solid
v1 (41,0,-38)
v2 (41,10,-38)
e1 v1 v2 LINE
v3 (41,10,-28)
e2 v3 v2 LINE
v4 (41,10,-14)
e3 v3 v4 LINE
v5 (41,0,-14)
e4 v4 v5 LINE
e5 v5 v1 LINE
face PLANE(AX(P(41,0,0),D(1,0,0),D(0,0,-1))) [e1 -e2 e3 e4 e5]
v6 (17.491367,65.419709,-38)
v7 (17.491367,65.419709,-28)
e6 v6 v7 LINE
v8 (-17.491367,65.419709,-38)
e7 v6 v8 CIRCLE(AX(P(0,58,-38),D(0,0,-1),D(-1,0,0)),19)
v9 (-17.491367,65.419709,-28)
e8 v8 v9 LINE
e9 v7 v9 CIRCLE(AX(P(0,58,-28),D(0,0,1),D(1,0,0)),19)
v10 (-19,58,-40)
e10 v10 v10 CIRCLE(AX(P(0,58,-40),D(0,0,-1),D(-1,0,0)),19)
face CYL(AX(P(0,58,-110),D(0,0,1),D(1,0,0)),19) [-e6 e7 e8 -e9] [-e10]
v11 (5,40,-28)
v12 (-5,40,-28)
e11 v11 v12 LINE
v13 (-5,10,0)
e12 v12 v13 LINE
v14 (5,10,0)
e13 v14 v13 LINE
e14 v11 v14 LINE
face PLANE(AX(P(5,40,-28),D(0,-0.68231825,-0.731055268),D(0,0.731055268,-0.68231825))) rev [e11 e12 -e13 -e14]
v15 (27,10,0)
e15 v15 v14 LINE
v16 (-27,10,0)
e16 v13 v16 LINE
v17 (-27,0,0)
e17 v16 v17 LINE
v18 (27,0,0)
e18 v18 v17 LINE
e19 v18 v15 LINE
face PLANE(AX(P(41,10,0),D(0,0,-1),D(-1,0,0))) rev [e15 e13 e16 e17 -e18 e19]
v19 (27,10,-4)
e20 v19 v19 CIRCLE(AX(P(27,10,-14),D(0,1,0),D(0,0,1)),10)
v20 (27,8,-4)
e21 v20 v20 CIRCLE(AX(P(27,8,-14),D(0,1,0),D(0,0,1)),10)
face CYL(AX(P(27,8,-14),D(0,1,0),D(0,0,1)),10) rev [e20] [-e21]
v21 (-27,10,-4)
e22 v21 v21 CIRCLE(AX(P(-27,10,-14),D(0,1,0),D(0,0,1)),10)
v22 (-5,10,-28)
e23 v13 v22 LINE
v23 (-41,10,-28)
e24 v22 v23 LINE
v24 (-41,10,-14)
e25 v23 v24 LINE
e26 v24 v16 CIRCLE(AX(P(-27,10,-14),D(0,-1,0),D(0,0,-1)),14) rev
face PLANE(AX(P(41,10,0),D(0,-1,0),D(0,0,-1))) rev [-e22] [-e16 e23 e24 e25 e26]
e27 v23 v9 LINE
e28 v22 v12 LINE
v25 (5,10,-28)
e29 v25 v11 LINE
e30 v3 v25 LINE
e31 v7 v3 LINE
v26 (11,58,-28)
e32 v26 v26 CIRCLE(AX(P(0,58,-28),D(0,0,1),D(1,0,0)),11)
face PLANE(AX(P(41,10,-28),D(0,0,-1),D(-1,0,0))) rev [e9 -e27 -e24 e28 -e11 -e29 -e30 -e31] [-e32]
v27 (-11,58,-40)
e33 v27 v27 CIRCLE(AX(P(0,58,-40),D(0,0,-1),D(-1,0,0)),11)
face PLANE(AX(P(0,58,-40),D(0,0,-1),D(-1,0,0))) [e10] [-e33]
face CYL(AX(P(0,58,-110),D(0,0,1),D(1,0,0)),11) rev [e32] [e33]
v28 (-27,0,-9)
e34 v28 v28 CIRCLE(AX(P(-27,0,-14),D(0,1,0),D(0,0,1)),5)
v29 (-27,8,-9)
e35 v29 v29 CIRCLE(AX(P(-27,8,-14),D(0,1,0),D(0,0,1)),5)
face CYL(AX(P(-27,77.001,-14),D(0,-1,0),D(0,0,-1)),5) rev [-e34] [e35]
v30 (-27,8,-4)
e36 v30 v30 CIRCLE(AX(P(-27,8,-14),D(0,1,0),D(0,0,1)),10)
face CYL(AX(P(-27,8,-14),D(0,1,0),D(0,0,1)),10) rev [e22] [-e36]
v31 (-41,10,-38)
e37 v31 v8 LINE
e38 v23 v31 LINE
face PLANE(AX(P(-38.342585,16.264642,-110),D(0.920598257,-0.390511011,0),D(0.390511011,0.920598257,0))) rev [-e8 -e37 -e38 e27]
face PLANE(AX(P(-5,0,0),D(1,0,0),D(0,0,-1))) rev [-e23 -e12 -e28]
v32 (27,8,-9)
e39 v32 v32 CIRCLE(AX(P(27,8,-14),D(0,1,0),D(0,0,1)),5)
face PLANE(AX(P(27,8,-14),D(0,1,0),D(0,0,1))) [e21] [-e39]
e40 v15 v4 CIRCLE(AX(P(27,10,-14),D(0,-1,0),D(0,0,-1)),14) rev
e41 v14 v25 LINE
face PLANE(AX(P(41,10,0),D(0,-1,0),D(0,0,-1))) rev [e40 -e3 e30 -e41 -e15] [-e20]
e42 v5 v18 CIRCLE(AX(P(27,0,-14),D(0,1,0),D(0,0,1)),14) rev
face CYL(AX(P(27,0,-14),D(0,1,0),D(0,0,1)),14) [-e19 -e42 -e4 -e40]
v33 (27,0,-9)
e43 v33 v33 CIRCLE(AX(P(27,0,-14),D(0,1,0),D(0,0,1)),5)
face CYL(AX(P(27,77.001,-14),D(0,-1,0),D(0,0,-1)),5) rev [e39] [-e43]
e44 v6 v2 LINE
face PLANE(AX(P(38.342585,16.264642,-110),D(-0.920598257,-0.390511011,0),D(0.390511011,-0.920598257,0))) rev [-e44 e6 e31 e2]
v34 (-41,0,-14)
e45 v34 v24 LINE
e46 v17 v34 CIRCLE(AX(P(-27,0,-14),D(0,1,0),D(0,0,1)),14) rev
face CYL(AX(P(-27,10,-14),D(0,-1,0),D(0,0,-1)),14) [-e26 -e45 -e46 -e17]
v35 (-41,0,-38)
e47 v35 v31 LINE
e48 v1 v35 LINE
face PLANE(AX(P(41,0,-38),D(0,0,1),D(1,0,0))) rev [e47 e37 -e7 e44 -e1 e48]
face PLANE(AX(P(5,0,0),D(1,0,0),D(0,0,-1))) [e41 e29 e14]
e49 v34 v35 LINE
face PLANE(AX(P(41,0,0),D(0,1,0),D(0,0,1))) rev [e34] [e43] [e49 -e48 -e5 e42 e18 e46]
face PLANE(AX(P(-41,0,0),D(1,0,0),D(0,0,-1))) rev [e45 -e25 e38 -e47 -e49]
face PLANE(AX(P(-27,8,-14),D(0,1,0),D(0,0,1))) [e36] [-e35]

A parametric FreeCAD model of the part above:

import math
import FreeCAD as App
import Part
import Sketcher

V = App.Vector
Q = App.Units.Quantity


def edges_at(feature, points):
    """Names of the edges that pass closest to the given points."""
    edges = feature.Shape.Edges
    near = lambda p: min(range(len(edges)), key=lambda i: edges[i].distToShape(Part.Vertex(*p))[0])
    return sorted({f"Edge{near(p) + 1}" for p in points})


def add_polygon(sketch, points):
    """Adds a closed chain of lines whose ends are joined by coincident constraints."""
    first, n = sketch.GeometryCount, len(points)
    for a, b in zip(points, points[1:] + points[:1]):
        sketch.addGeometry(Part.LineSegment(App.Vector(*a, 0), App.Vector(*b, 0)), False)
    for i in range(n):
        sketch.addConstraint(Sketcher.Constraint("Coincident", first + i, 2, first + (i + 1) % n, 1))

doc = App.newDocument("Part")
body = doc.addObject("PartDesign::Body", "Body")

# Sketch on YZ plane
sketch1 = doc.addObject("Sketcher::SketchObject", "Sketch")
body.addObject(sketch1)
sketch1.AttachmentSupport = (doc.YZ_Plane, [""])
sketch1.MapMode = "FlatFace"
add_polygon(sketch1, [(0, 0), (0, -38), (77, -38), (77, -28), (10, -28), (10, 0)])  # lines 0-5
sketch1.addConstraint(Sketcher.Constraint("Vertical", 0))
sketch1.addConstraint(Sketcher.Constraint("Horizontal", 1))
sketch1.addConstraint(Sketcher.Constraint("Vertical", 2))
sketch1.addConstraint(Sketcher.Constraint("Horizontal", 3))
sketch1.addConstraint(Sketcher.Constraint("Vertical", 4))
sketch1.addConstraint(Sketcher.Constraint("Horizontal", 5))
sketch1.addConstraint(Sketcher.Constraint("Coincident", 5, 2, -1, 1))
sketch1.addConstraint(Sketcher.Constraint("Equal", 5, 2))
sketch1.addConstraint(Sketcher.Constraint("DistanceX", 1, 1, 1, 2, Q("77 mm")))
sketch1.addConstraint(Sketcher.Constraint("DistanceX", 3, 2, 3, 1, Q("67 mm")))
sketch1.addConstraint(Sketcher.Constraint("DistanceY", 0, 2, 0, 1, Q("38 mm")))
pad1 = doc.addObject("PartDesign::Pad", "Pad")
body.addObject(pad1)
pad1.Profile = sketch1
pad1.Length = 82
pad1.Midplane = True

# Sketch on XY plane
sketch2 = doc.addObject("Sketcher::SketchObject", "Sketch001")
body.addObject(sketch2)
sketch2.AttachmentSupport = (doc.XY_Plane, [""])
sketch2.MapMode = "FlatFace"
sketch2.AttachmentOffset = App.Placement(V(0, 0, -28), App.Rotation())
sketch2.addGeometry(Part.LineSegment(V(-41, 77, 0), V(-41, 10, 0)), False)
sketch2.addGeometry(Part.LineSegment(V(-41, 10, 0), V(-17, 65, 0)), False)
sketch2.addGeometry(Part.ArcOfCircle(Part.Circle(V(0, 58, 0), V(0, 0, 1), 19), math.radians(90), math.radians(157)), False)
sketch2.addGeometry(Part.LineSegment(V(0, 77, 0), V(-41, 77, 0)), False)
sketch2.addGeometry(Part.LineSegment(V(41, 77, 0), V(0, 77, 0)), False)
sketch2.addGeometry(Part.ArcOfCircle(Part.Circle(V(0, 58, 0), V(0, 0, 1), 19), math.radians(23), math.radians(90)), False)
sketch2.addGeometry(Part.LineSegment(V(17, 65, 0), V(41, 10, 0)), False)
sketch2.addGeometry(Part.LineSegment(V(41, 10, 0), V(41, 77, 0)), False)
sketch2.addGeometry(Part.Circle(V(0, 58, 0), V(0, 0, 1), 11), False)
sketch2.addConstraint(Sketcher.Constraint("Coincident", 0, 2, 1, 1))
sketch2.addConstraint(Sketcher.Constraint("Tangent", 1, 2, 2, 2))
sketch2.addConstraint(Sketcher.Constraint("Tangent", 2, 1, 3, 1))
sketch2.addConstraint(Sketcher.Constraint("Coincident", 3, 2, 0, 1))
sketch2.addConstraint(Sketcher.Constraint("Tangent", 4, 2, 5, 2))
sketch2.addConstraint(Sketcher.Constraint("Tangent", 5, 1, 6, 1))
sketch2.addConstraint(Sketcher.Constraint("Coincident", 6, 2, 7, 1))
sketch2.addConstraint(Sketcher.Constraint("Coincident", 7, 2, 4, 1))
sketch2.addConstraint(Sketcher.Constraint("Vertical", 0))
sketch2.addConstraint(Sketcher.Constraint("Horizontal", 3))
sketch2.addConstraint(Sketcher.Constraint("Horizontal", 4))
sketch2.addConstraint(Sketcher.Constraint("Vertical", 7))
sketch2.addConstraint(Sketcher.Constraint("Coincident", 5, 3, 2, 3))
sketch2.addConstraint(Sketcher.Constraint("Coincident", 8, 3, 2, 3))
sketch2.addConstraint(Sketcher.Constraint("Equal", 2, 5))
sketch2.addConstraint(Sketcher.Constraint("Symmetric", 1, 2, 5, 1, -2))
sketch2.addConstraint(Sketcher.Constraint("Horizontal", 0, 2, 6, 2))
sketch2.addConstraint(Sketcher.Constraint("Diameter", 8, Q("22 mm")))
sketch2.addConstraint(Sketcher.Constraint("Radius", 2, Q("19 mm")))
sketch2.addConstraint(Sketcher.Constraint("DistanceX", 3, 2, 3, 1, Q("41 mm")))
sketch2.addConstraint(Sketcher.Constraint("DistanceY", 0, 2, 0, 1, Q("67 mm")))
sketch2.addConstraint(Sketcher.Constraint("DistanceY", -1, 1, 2, 3, Q("58 mm")))
pocket1 = doc.addObject("PartDesign::Pocket", "Pocket")
body.addObject(pocket1)
pocket1.Profile = sketch2
pocket1.Length = 82

# Sketch on YZ plane
sketch3 = doc.addObject("Sketcher::SketchObject", "Sketch002")
body.addObject(sketch3)
sketch3.AttachmentSupport = (doc.YZ_Plane, [""])
sketch3.MapMode = "FlatFace"
add_polygon(sketch3, [(10, 0), (10, -28), (40, -28)])  # lines 0-2
sketch3.addConstraint(Sketcher.Constraint("Vertical", 0))
sketch3.addConstraint(Sketcher.Constraint("Horizontal", 1))
sketch3.addConstraint(Sketcher.Constraint("PointOnObject", 2, 2, -1))
sketch3.addConstraint(Sketcher.Constraint("DistanceX", 1, 1, 1, 2, Q("30 mm")))
sketch3.addConstraint(Sketcher.Constraint("DistanceY", 0, 2, 0, 1, Q("28 mm")))
sketch3.addConstraint(Sketcher.Constraint("DistanceX", -1, 1, 0, 2, Q("10 mm")))
pad2 = doc.addObject("PartDesign::Pad", "Pad001")
body.addObject(pad2)
pad2.Profile = sketch3
pad2.Length = 10
pad2.Midplane = True
doc.recompute()

fillet = doc.addObject("PartDesign::Fillet", "Fillet")
body.addObject(fillet)
fillet.Base = (pad2, edges_at(pad2, [(41, 5, 0), (-41, 5, 0)]))
fillet.Radius = 14

# Sketch on XZ plane
sketch4 = doc.addObject("Sketcher::SketchObject", "Sketch003")
body.addObject(sketch4)
sketch4.AttachmentSupport = (doc.XZ_Plane, [""])
sketch4.MapMode = "FlatFace"
sketch4.addGeometry(Part.Circle(V(-27, -14, 0), V(0, 0, 1), 5), False)
sketch4.addConstraint(Sketcher.Constraint("Diameter", 0, Q("10 mm")))
sketch4.addConstraint(Sketcher.Constraint("DistanceX", 0, 3, -1, 1, Q("27 mm")))
sketch4.addConstraint(Sketcher.Constraint("DistanceY", 0, 3, -1, 1, Q("14 mm")))
pocket2 = doc.addObject("PartDesign::Pocket", "Pocket001")
body.addObject(pocket2)
pocket2.Profile = sketch4
pocket2.Type = "UpToFirst"

# Sketch on XZ plane
sketch5 = doc.addObject("Sketcher::SketchObject", "Sketch004")
body.addObject(sketch5)
sketch5.AttachmentSupport = (doc.XZ_Plane, [""])
sketch5.MapMode = "FlatFace"
sketch5.addGeometry(Part.Circle(V(27, -14, 0), V(0, 0, 1), 5), False)
sketch5.addConstraint(Sketcher.Constraint("Diameter", 0, Q("10 mm")))
sketch5.addConstraint(Sketcher.Constraint("DistanceX", -1, 1, 0, 3, Q("27 mm")))
sketch5.addConstraint(Sketcher.Constraint("DistanceY", 0, 3, -1, 1, Q("14 mm")))
pocket3 = doc.addObject("PartDesign::Pocket", "Pocket002")
body.addObject(pocket3)
pocket3.Profile = sketch5
pocket3.Type = "UpToFirst"

# Sketch on XZ plane
sketch6 = doc.addObject("Sketcher::SketchObject", "Sketch005")
body.addObject(sketch6)
sketch6.AttachmentSupport = (doc.XZ_Plane, [""])
sketch6.MapMode = "FlatFace"
sketch6.AttachmentOffset = App.Placement(V(0, 0, -10), App.Rotation())
sketch6.addGeometry(Part.Circle(V(-27, -14, 0), V(0, 0, 1), 10), False)
sketch6.addGeometry(Part.Circle(V(27, -14, 0), V(0, 0, 1), 10), False)
sketch6.addConstraint(Sketcher.Constraint("Equal", 0, 1))
sketch6.addConstraint(Sketcher.Constraint("Symmetric", 0, 3, 1, 3, -2))
sketch6.addConstraint(Sketcher.Constraint("Diameter", 0, Q("20 mm")))
sketch6.addConstraint(Sketcher.Constraint("DistanceX", 0, 3, -1, 1, Q("27 mm")))
sketch6.addConstraint(Sketcher.Constraint("DistanceY", 0, 3, -1, 1, Q("14 mm")))
pocket4 = doc.addObject("PartDesign::Pocket", "Pocket003")
body.addObject(pocket4)
pocket4.Profile = sketch6
pocket4.Length = 2
pocket4.Reversed = True

# Sketch on XY plane
sketch7 = doc.addObject("Sketcher::SketchObject", "Sketch006")
body.addObject(sketch7)
sketch7.AttachmentSupport = (doc.XY_Plane, [""])
sketch7.MapMode = "FlatFace"
sketch7.AttachmentOffset = App.Placement(V(0, 0, -38), App.Rotation())
sketch7.addGeometry(Part.Circle(V(0, 58, 0), V(0, 0, 1), 19), False)
sketch7.addGeometry(Part.Circle(V(0, 58, 0), V(0, 0, 1), 11), False)
sketch7.addConstraint(Sketcher.Constraint("Coincident", 1, 3, 0, 3))
sketch7.addConstraint(Sketcher.Constraint("PointOnObject", 0, 3, -2))
sketch7.addConstraint(Sketcher.Constraint("Diameter", 0, Q("38 mm")))
sketch7.addConstraint(Sketcher.Constraint("Diameter", 1, Q("22 mm")))
sketch7.addConstraint(Sketcher.Constraint("DistanceY", -1, 1, 0, 3, Q("58 mm")))
pad3 = doc.addObject("PartDesign::Pad", "Pad002")
body.addObject(pad3)
pad3.Profile = sketch7
pad3.Length = 2
pad3.Reversed = True

doc.recompute()
